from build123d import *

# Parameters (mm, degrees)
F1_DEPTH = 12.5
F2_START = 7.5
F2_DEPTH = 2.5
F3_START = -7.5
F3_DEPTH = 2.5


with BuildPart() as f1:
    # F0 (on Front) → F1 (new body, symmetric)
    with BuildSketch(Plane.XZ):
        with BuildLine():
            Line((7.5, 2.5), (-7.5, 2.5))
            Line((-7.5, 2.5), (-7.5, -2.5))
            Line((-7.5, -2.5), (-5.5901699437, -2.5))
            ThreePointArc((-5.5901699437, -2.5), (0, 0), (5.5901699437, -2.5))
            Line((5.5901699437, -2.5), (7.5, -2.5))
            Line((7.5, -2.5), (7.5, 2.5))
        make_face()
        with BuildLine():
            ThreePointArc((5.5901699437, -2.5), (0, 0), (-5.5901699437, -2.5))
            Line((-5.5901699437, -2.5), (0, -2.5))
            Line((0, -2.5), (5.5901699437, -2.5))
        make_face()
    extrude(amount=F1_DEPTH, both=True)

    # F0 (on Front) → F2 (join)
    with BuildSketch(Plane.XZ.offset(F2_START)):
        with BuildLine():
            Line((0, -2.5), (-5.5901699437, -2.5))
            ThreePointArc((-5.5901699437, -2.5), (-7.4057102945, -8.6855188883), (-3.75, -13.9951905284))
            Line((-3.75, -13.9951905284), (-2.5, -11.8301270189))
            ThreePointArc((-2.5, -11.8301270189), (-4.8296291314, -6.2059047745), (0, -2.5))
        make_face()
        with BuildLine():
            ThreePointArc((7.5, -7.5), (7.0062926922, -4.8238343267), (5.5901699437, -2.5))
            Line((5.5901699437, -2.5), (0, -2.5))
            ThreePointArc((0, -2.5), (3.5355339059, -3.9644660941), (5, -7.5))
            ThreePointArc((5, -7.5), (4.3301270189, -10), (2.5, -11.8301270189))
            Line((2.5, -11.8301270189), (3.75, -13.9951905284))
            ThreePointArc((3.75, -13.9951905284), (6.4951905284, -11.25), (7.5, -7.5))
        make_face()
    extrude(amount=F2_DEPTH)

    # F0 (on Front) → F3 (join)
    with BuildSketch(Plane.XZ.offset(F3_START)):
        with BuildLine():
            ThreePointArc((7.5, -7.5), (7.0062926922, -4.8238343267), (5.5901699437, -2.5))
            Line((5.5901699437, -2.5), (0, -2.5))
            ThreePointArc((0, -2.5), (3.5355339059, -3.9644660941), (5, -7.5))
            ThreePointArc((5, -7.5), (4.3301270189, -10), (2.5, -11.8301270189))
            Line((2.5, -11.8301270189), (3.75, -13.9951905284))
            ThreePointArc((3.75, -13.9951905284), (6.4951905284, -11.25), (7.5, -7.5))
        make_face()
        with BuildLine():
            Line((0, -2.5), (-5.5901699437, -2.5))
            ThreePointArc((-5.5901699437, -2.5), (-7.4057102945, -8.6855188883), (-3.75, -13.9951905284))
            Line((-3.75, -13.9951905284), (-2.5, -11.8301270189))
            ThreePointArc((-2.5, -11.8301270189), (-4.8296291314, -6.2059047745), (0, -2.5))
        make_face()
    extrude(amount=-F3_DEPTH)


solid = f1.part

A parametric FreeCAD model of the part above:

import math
import FreeCAD as App
import Part
import Sketcher

V = App.Vector
Q = App.Units.Quantity

doc = App.newDocument("Part")
body = doc.addObject("PartDesign::Body", "Body")

# Sketch on XZ plane
sketch1 = doc.addObject("Sketcher::SketchObject", "Sketch")
body.addObject(sketch1)
sketch1.AttachmentSupport = (doc.XZ_Plane, [""])
sketch1.MapMode = "FlatFace"
sketch1.addGeometry([
    Part.LineSegment(V(8, 2, 0), V(-8, 2, 0)),
    Part.LineSegment(V(-8, 2, 0), V(-8, -2, 0)),
    Part.LineSegment(V(-8, -2, 0), V(8, -2, 0)),
    Part.LineSegment(V(8, -2, 0), V(8, 2, 0)),
], False)
sketch1.addConstraint([
    Sketcher.Constraint("Coincident", 0, 2, 1, 1),
    Sketcher.Constraint("Coincident", 1, 2, 2, 1),
    Sketcher.Constraint("Coincident", 2, 2, 3, 1),
    Sketcher.Constraint("Coincident", 3, 2, 0, 1),
    Sketcher.Constraint("Horizontal", 0),
    Sketcher.Constraint("Vertical", 1),
    Sketcher.Constraint("Horizontal", 2),
    Sketcher.Constraint("Vertical", 3),
    Sketcher.Constraint("Symmetric", 0, 2, 2, 2, -1, 1),
    Sketcher.Constraint("DistanceX", 0, 2, 0, 1, Q("15 mm")),
    Sketcher.Constraint("DistanceY", 1, 2, 1, 1, Q("5 mm")),
])
pad1 = doc.addObject("PartDesign::Pad", "Pad")
body.addObject(pad1)
pad1.Profile = sketch1
pad1.Length = 25
pad1.Midplane = True

# Sketch on XZ plane
sketch2 = doc.addObject("Sketcher::SketchObject", "Sketch001")
body.addObject(sketch2)
sketch2.AttachmentSupport = (doc.XZ_Plane, [""])
sketch2.MapMode = "FlatFace"
sketch2.AttachmentOffset = App.Placement(V(0, 0, 7.5), App.Rotation())
sketch2.addGeometry([
    Part.LineSegment(V(0, -2.5, 0), V(-5.6, -2.5, 0)),  # 0
    Part.ArcOfCircle(Part.Circle(V(0, -7.5, 0), V(0, 0, 1), 7.5), math.radians(138), math.radians(240)),  # 1
    Part.LineSegment(V(-3.8, -14, 0), V(-2.5, -11.8, 0)),  # 2
    Part.ArcOfCircle(Part.Circle(V(0, -7.5, 0), V(0, 0, 1), 5), math.radians(90), math.radians(240)),  # 3
    Part.ArcOfCircle(Part.Circle(V(0, -7.5, 0), V(0, 0, 1), 7.5), math.radians(0), math.radians(42)),  # 4
    Part.LineSegment(V(5.6, -2.5, 0), V(0, -2.5, 0)),  # 5
    Part.ArcOfCircle(Part.Circle(V(0, -7.5, 0), V(0, 0, 1), 5), math.radians(0), math.radians(90)),  # 6
    Part.ArcOfCircle(Part.Circle(V(0, -7.5, 0), V(0, 0, 1), 5), math.radians(-60), math.radians(0)),  # 7
    Part.LineSegment(V(2.5, -11.8, 0), V(3.8, -14, 0)),  # 8
    Part.ArcOfCircle(Part.Circle(V(0, -7.5, 0), V(0, 0, 1), 7.5), math.radians(-60), math.radians(0)),  # 9
], False)
sketch2.addConstraint([
    Sketcher.Constraint("Coincident", 0, 2, 1, 1),
    Sketcher.Constraint("Coincident", 1, 2, 2, 1),
    Sketcher.Constraint("Coincident", 2, 2, 3, 2),
    Sketcher.Constraint("Tangent", 3, 1, 0, 1),
    Sketcher.Constraint("Coincident", 4, 2, 5, 1),
    Sketcher.Constraint("Tangent", 5, 2, 6, 2),
    Sketcher.Constraint("Tangent", 6, 1, 7, 2),
    Sketcher.Constraint("Coincident", 7, 1, 8, 1),
    Sketcher.Constraint("Coincident", 8, 2, 9, 1),
    Sketcher.Constraint("Tangent", 9, 2, 4, 1),
    Sketcher.Constraint("Horizontal", 0),
    Sketcher.Constraint("Horizontal", 5),
    Sketcher.Constraint("Coincident", 3, 3, 1, 3),
    Sketcher.Constraint("Coincident", 4, 3, 1, 3),
    Sketcher.Constraint("Coincident", 6, 3, 1, 3),
    Sketcher.Constraint("Equal", 1, 4),
    Sketcher.Constraint("Equal", 3, 6),
    Sketcher.Constraint("Equal", 6, 7),
    Sketcher.Constraint("Equal", 4, 9),
    Sketcher.Constraint("Symmetric", 2, 2, 7, 1, -2),
    Sketcher.Constraint("Horizontal", 9, 3, 6, 1),
    Sketcher.Constraint("Horizontal", 1, 2, 8, 2),
    Sketcher.Constraint("Horizontal", 6, 1, 9, 2),
    Sketcher.Constraint("Radius", 3, Q("5 mm")),
    Sketcher.Constraint("Radius", 1, Q("7.5 mm")),
    Sketcher.Constraint("Angle", 2, Q("60 deg")),
    Sketcher.Constraint("DistanceX", 2, 2, 7, 1, Q("5 mm")),
    Sketcher.Constraint("DistanceY", 1, 3, -1, 1, Q("7.5 mm")),
])
pad2 = doc.addObject("PartDesign::Pad", "Pad001")
body.addObject(pad2)
pad2.Profile = sketch2
pad2.Length = 2.5

# Sketch on XZ plane
sketch3 = doc.addObject("Sketcher::SketchObject", "Sketch002")
body.addObject(sketch3)
sketch3.AttachmentSupport = (doc.XZ_Plane, [""])
sketch3.MapMode = "FlatFace"
sketch3.AttachmentOffset = App.Placement(V(0, 0, -7.5), App.Rotation())
sketch3.addGeometry([
    Part.ArcOfCircle(Part.Circle(V(0, -7.5, 0), V(0, 0, 1), 7.5), math.radians(0), math.radians(42)),  # 0
    Part.LineSegment(V(5.6, -2.5, 0), V(0, -2.5, 0)),  # 1
    Part.ArcOfCircle(Part.Circle(V(0, -7.5, 0), V(0, 0, 1), 5), math.radians(0), math.radians(90)),  # 2
    Part.ArcOfCircle(Part.Circle(V(0, -7.5, 0), V(0, 0, 1), 5), math.radians(-60), math.radians(0)),  # 3
    Part.LineSegment(V(2.5, -11.8, 0), V(3.8, -14, 0)),  # 4
    Part.ArcOfCircle(Part.Circle(V(0, -7.5, 0), V(0, 0, 1), 7.5), math.radians(-60), math.radians(0)),  # 5
    Part.LineSegment(V(0, -2.5, 0), V(-5.6, -2.5, 0)),  # 6
    Part.ArcOfCircle(Part.Circle(V(0, -7.5, 0), V(0, 0, 1), 7.5), math.radians(138), math.radians(240)),  # 7
    Part.LineSegment(V(-3.8, -14, 0), V(-2.5, -11.8, 0)),  # 8
    Part.ArcOfCircle(Part.Circle(V(0, -7.5, 0), V(0, 0, 1), 5), math.radians(90), math.radians(240)),  # 9
], False)
sketch3.addConstraint([
    Sketcher.Constraint("Coincident", 0, 2, 1, 1),
    Sketcher.Constraint("Tangent", 1, 2, 2, 2),
    Sketcher.Constraint("Tangent", 2, 1, 3, 2),
    Sketcher.Constraint("Coincident", 3, 1, 4, 1),
    Sketcher.Constraint("Coincident", 4, 2, 5, 1),
    Sketcher.Constraint("Tangent", 5, 2, 0, 1),
    Sketcher.Constraint("Coincident", 6, 2, 7, 1),
    Sketcher.Constraint("Coincident", 7, 2, 8, 1),
    Sketcher.Constraint("Coincident", 8, 2, 9, 2),
    Sketcher.Constraint("Tangent", 9, 1, 6, 1),
    Sketcher.Constraint("Horizontal", 1),
    Sketcher.Constraint("Horizontal", 6),
    Sketcher.Constraint("Coincident", 2, 3, 0, 3),
    Sketcher.Constraint("Coincident", 7, 3, 0, 3),
    Sketcher.Constraint("Coincident", 9, 3, 0, 3),
    Sketcher.Constraint("Equal", 2, 3),
    Sketcher.Constraint("Equal", 0, 5),
    Sketcher.Constraint("Equal", 5, 7),
    Sketcher.Constraint("Equal", 3, 9),
    Sketcher.Constraint("Symmetric", 4, 2, 7, 2, -2),
    Sketcher.Constraint("Horizontal", 9, 3, 2, 1),
    Sketcher.Constraint("Horizontal", 2, 1, 5, 2),
    Sketcher.Constraint("Horizontal", 3, 1, 8, 2),
    Sketcher.Constraint("Radius", 2, Q("5 mm")),
    Sketcher.Constraint("Radius", 0, Q("7.5 mm")),
    Sketcher.Constraint("Angle", 4, Q("-60 deg")),
    Sketcher.Constraint("DistanceX", 3, 1, 5, 2, Q("5 mm")),
    Sketcher.Constraint("DistanceY", 0, 3, -1, 1, Q("7.5 mm")),
])
pad3 = doc.addObject("PartDesign::Pad", "Pad002")
body.addObject(pad3)
pad3.Profile = sketch3
pad3.Length = 2.5
pad3.Reversed = True

doc.recompute()
